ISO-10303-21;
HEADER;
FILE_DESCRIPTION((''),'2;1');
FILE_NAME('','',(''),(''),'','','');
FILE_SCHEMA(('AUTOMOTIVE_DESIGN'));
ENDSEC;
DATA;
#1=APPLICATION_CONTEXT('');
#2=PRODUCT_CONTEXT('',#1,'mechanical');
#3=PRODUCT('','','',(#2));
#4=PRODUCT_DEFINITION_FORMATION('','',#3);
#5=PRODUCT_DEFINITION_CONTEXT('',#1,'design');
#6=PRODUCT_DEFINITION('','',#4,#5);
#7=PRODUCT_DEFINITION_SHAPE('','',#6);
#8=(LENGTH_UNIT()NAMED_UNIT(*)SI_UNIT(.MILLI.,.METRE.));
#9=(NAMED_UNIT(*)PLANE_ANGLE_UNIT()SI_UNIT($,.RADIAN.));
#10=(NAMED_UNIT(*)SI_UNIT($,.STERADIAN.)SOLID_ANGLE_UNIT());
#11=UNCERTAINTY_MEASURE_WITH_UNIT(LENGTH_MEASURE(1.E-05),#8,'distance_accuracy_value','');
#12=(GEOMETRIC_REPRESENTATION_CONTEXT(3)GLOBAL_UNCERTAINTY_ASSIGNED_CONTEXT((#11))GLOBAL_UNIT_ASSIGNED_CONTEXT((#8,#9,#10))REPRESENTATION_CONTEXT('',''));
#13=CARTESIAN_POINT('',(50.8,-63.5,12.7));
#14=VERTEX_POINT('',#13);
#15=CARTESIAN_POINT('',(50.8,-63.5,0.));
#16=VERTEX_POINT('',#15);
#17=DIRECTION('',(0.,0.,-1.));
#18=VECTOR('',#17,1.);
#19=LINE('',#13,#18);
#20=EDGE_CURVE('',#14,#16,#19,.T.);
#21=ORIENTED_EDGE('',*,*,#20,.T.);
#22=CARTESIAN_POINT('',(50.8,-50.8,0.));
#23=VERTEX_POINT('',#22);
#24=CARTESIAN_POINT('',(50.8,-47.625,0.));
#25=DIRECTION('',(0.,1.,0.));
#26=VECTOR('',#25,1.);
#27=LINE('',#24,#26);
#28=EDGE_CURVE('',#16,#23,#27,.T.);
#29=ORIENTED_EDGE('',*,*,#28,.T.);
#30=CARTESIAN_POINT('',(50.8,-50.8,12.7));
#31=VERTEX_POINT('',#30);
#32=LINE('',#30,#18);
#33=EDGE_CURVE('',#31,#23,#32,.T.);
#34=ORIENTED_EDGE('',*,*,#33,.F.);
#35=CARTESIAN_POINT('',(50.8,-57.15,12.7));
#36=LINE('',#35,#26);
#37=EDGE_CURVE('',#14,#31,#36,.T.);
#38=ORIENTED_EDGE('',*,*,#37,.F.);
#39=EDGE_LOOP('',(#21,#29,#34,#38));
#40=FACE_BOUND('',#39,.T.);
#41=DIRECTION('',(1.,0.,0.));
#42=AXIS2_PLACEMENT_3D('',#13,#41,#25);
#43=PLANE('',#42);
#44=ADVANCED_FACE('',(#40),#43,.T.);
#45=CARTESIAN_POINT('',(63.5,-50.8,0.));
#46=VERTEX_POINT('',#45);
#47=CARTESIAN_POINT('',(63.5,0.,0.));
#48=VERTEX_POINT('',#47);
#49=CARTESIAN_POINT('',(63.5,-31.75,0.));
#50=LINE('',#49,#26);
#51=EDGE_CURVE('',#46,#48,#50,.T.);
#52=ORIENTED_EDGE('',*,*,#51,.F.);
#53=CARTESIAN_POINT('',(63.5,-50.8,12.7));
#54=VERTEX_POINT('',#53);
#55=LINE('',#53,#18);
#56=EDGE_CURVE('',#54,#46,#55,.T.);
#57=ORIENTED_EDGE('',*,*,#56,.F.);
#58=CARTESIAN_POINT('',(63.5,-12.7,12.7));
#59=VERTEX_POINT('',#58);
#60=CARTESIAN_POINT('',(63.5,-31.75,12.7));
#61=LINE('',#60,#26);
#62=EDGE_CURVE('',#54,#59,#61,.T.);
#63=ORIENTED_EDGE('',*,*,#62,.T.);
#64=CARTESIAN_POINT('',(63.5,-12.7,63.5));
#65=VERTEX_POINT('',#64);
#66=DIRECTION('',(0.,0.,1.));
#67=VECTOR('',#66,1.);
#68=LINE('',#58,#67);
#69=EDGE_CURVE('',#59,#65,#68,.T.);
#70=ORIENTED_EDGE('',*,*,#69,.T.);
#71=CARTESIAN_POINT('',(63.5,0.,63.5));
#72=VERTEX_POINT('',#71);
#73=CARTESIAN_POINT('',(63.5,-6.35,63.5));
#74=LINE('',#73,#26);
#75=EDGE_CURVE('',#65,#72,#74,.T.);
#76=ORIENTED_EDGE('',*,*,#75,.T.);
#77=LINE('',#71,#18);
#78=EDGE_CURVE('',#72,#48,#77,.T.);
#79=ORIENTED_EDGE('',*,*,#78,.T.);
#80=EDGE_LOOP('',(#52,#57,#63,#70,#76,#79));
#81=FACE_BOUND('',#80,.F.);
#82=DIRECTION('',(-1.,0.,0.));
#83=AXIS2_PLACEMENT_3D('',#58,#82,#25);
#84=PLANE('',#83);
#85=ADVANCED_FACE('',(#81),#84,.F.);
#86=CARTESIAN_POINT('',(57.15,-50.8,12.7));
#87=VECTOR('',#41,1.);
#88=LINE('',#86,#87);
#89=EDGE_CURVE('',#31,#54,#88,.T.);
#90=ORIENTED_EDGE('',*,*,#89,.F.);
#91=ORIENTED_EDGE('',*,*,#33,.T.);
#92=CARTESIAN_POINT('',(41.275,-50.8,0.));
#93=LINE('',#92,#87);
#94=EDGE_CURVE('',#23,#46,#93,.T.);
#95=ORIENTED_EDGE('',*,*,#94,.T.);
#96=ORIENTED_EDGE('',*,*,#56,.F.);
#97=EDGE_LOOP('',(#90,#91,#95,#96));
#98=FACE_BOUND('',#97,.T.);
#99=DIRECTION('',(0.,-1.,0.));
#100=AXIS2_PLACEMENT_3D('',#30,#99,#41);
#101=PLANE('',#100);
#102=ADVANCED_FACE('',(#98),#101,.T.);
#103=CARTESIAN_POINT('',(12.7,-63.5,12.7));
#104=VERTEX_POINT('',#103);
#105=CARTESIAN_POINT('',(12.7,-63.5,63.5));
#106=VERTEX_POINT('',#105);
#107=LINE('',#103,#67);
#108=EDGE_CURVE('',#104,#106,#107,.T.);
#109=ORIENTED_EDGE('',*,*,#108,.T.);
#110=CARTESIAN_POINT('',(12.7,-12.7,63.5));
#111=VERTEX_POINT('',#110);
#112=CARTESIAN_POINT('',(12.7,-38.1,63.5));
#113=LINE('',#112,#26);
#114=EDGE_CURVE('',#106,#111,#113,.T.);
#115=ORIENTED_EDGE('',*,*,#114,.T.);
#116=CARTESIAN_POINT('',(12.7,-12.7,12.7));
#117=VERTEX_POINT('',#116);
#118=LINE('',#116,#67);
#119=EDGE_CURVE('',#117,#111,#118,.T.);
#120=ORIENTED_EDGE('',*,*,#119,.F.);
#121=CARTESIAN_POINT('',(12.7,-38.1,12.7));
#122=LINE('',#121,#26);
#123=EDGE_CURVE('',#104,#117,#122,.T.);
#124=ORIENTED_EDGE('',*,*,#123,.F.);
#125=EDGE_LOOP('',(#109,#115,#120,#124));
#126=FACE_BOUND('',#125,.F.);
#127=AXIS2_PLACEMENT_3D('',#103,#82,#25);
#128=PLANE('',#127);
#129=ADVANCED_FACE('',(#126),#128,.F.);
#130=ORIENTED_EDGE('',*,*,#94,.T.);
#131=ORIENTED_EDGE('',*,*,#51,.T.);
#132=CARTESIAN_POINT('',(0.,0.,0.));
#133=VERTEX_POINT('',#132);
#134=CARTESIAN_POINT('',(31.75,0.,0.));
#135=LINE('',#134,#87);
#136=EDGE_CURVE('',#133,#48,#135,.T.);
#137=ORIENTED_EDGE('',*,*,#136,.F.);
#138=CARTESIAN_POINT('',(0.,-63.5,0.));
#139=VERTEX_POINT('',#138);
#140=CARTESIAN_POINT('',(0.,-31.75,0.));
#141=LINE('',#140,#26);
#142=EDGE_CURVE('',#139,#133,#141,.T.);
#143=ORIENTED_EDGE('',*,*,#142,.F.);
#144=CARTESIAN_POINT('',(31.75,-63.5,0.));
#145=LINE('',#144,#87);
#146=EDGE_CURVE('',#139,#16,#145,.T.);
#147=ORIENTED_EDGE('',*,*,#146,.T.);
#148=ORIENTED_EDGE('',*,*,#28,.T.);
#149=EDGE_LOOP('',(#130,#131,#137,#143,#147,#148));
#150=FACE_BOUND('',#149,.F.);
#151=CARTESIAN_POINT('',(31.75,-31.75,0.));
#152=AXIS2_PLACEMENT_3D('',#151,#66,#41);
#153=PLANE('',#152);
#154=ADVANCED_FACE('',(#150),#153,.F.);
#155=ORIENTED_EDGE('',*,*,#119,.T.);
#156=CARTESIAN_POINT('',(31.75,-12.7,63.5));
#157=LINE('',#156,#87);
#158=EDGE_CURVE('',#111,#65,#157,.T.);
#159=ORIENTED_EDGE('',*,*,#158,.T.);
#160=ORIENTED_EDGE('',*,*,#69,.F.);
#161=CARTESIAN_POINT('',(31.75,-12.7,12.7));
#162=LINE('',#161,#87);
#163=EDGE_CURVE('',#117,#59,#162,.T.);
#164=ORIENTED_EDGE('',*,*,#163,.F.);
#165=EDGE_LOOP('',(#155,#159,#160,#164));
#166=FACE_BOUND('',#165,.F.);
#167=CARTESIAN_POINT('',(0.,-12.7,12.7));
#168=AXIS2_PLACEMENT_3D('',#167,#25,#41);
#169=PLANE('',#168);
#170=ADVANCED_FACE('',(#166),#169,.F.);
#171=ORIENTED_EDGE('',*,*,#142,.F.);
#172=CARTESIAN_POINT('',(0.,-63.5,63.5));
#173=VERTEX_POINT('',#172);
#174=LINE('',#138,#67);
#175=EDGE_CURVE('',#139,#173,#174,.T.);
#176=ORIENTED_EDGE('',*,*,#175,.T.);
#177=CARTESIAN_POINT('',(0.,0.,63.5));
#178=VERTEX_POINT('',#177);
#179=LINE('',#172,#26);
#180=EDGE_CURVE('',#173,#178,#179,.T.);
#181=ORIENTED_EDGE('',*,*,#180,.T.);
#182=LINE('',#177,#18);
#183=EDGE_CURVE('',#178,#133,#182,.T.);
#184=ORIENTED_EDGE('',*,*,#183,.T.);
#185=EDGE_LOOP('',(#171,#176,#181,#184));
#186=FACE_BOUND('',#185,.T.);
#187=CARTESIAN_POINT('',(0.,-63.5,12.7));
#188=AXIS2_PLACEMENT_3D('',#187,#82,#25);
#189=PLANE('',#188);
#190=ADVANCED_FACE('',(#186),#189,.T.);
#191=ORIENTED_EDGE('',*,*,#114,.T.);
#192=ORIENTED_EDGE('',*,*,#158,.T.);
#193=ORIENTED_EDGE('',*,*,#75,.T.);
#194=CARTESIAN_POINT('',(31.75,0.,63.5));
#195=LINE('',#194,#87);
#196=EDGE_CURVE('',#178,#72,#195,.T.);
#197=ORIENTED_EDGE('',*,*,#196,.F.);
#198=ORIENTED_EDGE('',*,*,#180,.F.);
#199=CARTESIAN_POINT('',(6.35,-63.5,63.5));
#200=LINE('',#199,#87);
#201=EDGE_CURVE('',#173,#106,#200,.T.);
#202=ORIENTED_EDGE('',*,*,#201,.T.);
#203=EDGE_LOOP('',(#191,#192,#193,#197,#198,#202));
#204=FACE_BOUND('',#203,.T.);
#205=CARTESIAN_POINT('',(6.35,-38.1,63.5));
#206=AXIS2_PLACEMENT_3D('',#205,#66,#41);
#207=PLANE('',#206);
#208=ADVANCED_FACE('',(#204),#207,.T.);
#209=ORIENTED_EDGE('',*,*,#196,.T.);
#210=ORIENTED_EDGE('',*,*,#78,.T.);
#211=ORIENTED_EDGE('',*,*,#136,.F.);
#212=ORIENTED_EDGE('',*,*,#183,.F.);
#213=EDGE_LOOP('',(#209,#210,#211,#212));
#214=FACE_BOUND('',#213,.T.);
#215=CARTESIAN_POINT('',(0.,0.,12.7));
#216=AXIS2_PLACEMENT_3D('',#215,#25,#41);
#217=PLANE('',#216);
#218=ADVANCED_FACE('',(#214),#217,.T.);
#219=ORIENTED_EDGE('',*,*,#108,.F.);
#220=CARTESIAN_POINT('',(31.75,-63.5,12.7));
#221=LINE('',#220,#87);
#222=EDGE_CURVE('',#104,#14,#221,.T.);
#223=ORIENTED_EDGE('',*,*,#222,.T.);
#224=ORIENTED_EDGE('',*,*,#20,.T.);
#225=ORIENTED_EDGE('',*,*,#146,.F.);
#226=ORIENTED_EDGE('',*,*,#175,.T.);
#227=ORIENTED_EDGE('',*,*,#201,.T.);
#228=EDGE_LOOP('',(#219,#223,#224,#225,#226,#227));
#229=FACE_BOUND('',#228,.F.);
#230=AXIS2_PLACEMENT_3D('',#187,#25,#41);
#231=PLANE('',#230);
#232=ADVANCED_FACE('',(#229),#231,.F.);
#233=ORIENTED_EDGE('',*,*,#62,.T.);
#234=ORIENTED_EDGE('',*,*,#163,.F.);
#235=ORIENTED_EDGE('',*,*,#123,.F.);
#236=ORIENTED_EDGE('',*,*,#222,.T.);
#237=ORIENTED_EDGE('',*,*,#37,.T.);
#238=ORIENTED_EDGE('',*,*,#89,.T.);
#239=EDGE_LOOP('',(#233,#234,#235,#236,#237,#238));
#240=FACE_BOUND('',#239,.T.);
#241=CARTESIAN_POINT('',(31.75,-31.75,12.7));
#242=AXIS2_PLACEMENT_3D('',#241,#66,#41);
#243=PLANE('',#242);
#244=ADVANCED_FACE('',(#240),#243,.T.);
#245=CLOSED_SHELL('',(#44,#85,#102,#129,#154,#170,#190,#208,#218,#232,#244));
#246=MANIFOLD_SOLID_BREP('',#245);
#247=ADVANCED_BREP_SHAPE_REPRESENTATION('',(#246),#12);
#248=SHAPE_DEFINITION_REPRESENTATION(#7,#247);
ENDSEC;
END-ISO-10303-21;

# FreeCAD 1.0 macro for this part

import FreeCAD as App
import Part
import Sketcher
Q = App.Units.Quantity


def add_polygon(sketch, points):
    """Adds a closed chain of lines whose ends are joined by coincident constraints."""
    first, n = sketch.GeometryCount, len(points)
    for a, b in zip(points, points[1:] + points[:1]):
        sketch.addGeometry(Part.LineSegment(App.Vector(*a, 0), App.Vector(*b, 0)), False)
    for i in range(n):
        sketch.addConstraint(Sketcher.Constraint("Coincident", first + i, 2, first + (i + 1) % n, 1))

doc = App.newDocument("Part")
body = doc.addObject("PartDesign::Body", "Body")

# Sketch on XY plane
sketch1 = body.newObject("Sketcher::SketchObject", "Sketch")
sketch1.AttachmentSupport = (doc.getObject("XY_Plane"), [""])
sketch1.MapMode = "FlatFace"
add_polygon(sketch1, [(0, 0), (0, -64), (64, -64), (64, 0)])  # lines 0-3
sketch1.addConstraint([
    Sketcher.Constraint("Vertical", 0),
    Sketcher.Constraint("Horizontal", 1),
    Sketcher.Constraint("Vertical", 2),
    Sketcher.Constraint("Horizontal", 3),
    Sketcher.Constraint("Coincident", 3, 2, -1, 1),
    Sketcher.Constraint("Equal", 3, 0),
    Sketcher.Constraint("DistanceX", 1, 1, 1, 2, Q("2.5 in")),
])
pad1 = body.newObject("PartDesign::Pad", "Pad")
pad1.Profile = sketch1
pad1.Length = Q("0.5 in")

# Sketch on XY plane
sketch2 = body.newObject("Sketcher::SketchObject", "Sketch001")
sketch2.AttachmentSupport = (doc.getObject("XY_Plane"), [""])
sketch2.MapMode = "FlatFace"
sketch2.AttachmentOffset = App.Placement(App.Vector(0, 0, 0.5 * 25.4), App.Rotation())
add_polygon(sketch2, [(0, 0), (0, -13), (64, -13), (64, 0)])  # lines 0-3
sketch2.addConstraint([
    Sketcher.Constraint("Vertical", 0),
    Sketcher.Constraint("Horizontal", 1),
    Sketcher.Constraint("Vertical", 2),
    Sketcher.Constraint("Horizontal", 3),
    Sketcher.Constraint("Coincident", 3, 2, -1, 1),
    Sketcher.Constraint("DistanceX", 1, 1, 1, 2, Q("2.5 in")),
    Sketcher.Constraint("DistanceY", 0, 2, 0, 1, Q("0.5 in")),
])
pad2 = body.newObject("PartDesign::Pad", "Pad001")
pad2.Profile = sketch2
pad2.Length = Q("2 in")

# Sketch on XY plane
sketch3 = body.newObject("Sketcher::SketchObject", "Sketch002")
sketch3.AttachmentSupport = (doc.getObject("XY_Plane"), [""])
sketch3.MapMode = "FlatFace"
sketch3.AttachmentOffset = App.Placement(App.Vector(0, 0, 0.5 * 25.4), App.Rotation())
add_polygon(sketch3, [(0, -13), (0, -64), (13, -64), (13, -13)])  # lines 0-3
sketch3.addConstraint([
    Sketcher.Constraint("Vertical", 0),
    Sketcher.Constraint("Horizontal", 1),
    Sketcher.Constraint("Vertical", 2),
    Sketcher.Constraint("Horizontal", 3),
    Sketcher.Constraint("PointOnObject", 0, 2, -2),
    Sketcher.Constraint("DistanceY", 0, 2, 0, 1, Q("2 in")),
    Sketcher.Constraint("DistanceX", 1, 1, 1, 2, Q("0.5 in")),
    Sketcher.Constraint("DistanceY", 0, 2, -1, 1, Q("2.5 in")),
])
pad3 = body.newObject("PartDesign::Pad", "Pad002")
pad3.Profile = sketch3
pad3.Length = Q("2 in")

# Sketch on XY plane
sketch4 = body.newObject("Sketcher::SketchObject", "Sketch003")
sketch4.AttachmentSupport = (doc.getObject("XY_Plane"), [""])
sketch4.MapMode = "FlatFace"
sketch4.AttachmentOffset = App.Placement(App.Vector(0, 0, 0.5 * 25.4), App.Rotation())
add_polygon(sketch4, [(51, -51), (51, -64), (64, -64), (64, -51)])  # lines 0-3
sketch4.addConstraint([
    Sketcher.Constraint("Vertical", 0),
    Sketcher.Constraint("Horizontal", 1),
    Sketcher.Constraint("Vertical", 2),
    Sketcher.Constraint("Horizontal", 3),
    Sketcher.Constraint("Equal", 3, 0),
    Sketcher.Constraint("DistanceX", 1, 1, 1, 2, Q("0.5 in")),
    Sketcher.Constraint("DistanceX", -1, 1, 0, 2, Q("2 in")),
    Sketcher.Constraint("DistanceY", 2, 2, -1, 1, Q("2 in")),
])
pocket1 = body.newObject("PartDesign::Pocket", "Pocket")
pocket1.Profile = sketch4
pocket1.Length = Q("1 in")

doc.recompute()
